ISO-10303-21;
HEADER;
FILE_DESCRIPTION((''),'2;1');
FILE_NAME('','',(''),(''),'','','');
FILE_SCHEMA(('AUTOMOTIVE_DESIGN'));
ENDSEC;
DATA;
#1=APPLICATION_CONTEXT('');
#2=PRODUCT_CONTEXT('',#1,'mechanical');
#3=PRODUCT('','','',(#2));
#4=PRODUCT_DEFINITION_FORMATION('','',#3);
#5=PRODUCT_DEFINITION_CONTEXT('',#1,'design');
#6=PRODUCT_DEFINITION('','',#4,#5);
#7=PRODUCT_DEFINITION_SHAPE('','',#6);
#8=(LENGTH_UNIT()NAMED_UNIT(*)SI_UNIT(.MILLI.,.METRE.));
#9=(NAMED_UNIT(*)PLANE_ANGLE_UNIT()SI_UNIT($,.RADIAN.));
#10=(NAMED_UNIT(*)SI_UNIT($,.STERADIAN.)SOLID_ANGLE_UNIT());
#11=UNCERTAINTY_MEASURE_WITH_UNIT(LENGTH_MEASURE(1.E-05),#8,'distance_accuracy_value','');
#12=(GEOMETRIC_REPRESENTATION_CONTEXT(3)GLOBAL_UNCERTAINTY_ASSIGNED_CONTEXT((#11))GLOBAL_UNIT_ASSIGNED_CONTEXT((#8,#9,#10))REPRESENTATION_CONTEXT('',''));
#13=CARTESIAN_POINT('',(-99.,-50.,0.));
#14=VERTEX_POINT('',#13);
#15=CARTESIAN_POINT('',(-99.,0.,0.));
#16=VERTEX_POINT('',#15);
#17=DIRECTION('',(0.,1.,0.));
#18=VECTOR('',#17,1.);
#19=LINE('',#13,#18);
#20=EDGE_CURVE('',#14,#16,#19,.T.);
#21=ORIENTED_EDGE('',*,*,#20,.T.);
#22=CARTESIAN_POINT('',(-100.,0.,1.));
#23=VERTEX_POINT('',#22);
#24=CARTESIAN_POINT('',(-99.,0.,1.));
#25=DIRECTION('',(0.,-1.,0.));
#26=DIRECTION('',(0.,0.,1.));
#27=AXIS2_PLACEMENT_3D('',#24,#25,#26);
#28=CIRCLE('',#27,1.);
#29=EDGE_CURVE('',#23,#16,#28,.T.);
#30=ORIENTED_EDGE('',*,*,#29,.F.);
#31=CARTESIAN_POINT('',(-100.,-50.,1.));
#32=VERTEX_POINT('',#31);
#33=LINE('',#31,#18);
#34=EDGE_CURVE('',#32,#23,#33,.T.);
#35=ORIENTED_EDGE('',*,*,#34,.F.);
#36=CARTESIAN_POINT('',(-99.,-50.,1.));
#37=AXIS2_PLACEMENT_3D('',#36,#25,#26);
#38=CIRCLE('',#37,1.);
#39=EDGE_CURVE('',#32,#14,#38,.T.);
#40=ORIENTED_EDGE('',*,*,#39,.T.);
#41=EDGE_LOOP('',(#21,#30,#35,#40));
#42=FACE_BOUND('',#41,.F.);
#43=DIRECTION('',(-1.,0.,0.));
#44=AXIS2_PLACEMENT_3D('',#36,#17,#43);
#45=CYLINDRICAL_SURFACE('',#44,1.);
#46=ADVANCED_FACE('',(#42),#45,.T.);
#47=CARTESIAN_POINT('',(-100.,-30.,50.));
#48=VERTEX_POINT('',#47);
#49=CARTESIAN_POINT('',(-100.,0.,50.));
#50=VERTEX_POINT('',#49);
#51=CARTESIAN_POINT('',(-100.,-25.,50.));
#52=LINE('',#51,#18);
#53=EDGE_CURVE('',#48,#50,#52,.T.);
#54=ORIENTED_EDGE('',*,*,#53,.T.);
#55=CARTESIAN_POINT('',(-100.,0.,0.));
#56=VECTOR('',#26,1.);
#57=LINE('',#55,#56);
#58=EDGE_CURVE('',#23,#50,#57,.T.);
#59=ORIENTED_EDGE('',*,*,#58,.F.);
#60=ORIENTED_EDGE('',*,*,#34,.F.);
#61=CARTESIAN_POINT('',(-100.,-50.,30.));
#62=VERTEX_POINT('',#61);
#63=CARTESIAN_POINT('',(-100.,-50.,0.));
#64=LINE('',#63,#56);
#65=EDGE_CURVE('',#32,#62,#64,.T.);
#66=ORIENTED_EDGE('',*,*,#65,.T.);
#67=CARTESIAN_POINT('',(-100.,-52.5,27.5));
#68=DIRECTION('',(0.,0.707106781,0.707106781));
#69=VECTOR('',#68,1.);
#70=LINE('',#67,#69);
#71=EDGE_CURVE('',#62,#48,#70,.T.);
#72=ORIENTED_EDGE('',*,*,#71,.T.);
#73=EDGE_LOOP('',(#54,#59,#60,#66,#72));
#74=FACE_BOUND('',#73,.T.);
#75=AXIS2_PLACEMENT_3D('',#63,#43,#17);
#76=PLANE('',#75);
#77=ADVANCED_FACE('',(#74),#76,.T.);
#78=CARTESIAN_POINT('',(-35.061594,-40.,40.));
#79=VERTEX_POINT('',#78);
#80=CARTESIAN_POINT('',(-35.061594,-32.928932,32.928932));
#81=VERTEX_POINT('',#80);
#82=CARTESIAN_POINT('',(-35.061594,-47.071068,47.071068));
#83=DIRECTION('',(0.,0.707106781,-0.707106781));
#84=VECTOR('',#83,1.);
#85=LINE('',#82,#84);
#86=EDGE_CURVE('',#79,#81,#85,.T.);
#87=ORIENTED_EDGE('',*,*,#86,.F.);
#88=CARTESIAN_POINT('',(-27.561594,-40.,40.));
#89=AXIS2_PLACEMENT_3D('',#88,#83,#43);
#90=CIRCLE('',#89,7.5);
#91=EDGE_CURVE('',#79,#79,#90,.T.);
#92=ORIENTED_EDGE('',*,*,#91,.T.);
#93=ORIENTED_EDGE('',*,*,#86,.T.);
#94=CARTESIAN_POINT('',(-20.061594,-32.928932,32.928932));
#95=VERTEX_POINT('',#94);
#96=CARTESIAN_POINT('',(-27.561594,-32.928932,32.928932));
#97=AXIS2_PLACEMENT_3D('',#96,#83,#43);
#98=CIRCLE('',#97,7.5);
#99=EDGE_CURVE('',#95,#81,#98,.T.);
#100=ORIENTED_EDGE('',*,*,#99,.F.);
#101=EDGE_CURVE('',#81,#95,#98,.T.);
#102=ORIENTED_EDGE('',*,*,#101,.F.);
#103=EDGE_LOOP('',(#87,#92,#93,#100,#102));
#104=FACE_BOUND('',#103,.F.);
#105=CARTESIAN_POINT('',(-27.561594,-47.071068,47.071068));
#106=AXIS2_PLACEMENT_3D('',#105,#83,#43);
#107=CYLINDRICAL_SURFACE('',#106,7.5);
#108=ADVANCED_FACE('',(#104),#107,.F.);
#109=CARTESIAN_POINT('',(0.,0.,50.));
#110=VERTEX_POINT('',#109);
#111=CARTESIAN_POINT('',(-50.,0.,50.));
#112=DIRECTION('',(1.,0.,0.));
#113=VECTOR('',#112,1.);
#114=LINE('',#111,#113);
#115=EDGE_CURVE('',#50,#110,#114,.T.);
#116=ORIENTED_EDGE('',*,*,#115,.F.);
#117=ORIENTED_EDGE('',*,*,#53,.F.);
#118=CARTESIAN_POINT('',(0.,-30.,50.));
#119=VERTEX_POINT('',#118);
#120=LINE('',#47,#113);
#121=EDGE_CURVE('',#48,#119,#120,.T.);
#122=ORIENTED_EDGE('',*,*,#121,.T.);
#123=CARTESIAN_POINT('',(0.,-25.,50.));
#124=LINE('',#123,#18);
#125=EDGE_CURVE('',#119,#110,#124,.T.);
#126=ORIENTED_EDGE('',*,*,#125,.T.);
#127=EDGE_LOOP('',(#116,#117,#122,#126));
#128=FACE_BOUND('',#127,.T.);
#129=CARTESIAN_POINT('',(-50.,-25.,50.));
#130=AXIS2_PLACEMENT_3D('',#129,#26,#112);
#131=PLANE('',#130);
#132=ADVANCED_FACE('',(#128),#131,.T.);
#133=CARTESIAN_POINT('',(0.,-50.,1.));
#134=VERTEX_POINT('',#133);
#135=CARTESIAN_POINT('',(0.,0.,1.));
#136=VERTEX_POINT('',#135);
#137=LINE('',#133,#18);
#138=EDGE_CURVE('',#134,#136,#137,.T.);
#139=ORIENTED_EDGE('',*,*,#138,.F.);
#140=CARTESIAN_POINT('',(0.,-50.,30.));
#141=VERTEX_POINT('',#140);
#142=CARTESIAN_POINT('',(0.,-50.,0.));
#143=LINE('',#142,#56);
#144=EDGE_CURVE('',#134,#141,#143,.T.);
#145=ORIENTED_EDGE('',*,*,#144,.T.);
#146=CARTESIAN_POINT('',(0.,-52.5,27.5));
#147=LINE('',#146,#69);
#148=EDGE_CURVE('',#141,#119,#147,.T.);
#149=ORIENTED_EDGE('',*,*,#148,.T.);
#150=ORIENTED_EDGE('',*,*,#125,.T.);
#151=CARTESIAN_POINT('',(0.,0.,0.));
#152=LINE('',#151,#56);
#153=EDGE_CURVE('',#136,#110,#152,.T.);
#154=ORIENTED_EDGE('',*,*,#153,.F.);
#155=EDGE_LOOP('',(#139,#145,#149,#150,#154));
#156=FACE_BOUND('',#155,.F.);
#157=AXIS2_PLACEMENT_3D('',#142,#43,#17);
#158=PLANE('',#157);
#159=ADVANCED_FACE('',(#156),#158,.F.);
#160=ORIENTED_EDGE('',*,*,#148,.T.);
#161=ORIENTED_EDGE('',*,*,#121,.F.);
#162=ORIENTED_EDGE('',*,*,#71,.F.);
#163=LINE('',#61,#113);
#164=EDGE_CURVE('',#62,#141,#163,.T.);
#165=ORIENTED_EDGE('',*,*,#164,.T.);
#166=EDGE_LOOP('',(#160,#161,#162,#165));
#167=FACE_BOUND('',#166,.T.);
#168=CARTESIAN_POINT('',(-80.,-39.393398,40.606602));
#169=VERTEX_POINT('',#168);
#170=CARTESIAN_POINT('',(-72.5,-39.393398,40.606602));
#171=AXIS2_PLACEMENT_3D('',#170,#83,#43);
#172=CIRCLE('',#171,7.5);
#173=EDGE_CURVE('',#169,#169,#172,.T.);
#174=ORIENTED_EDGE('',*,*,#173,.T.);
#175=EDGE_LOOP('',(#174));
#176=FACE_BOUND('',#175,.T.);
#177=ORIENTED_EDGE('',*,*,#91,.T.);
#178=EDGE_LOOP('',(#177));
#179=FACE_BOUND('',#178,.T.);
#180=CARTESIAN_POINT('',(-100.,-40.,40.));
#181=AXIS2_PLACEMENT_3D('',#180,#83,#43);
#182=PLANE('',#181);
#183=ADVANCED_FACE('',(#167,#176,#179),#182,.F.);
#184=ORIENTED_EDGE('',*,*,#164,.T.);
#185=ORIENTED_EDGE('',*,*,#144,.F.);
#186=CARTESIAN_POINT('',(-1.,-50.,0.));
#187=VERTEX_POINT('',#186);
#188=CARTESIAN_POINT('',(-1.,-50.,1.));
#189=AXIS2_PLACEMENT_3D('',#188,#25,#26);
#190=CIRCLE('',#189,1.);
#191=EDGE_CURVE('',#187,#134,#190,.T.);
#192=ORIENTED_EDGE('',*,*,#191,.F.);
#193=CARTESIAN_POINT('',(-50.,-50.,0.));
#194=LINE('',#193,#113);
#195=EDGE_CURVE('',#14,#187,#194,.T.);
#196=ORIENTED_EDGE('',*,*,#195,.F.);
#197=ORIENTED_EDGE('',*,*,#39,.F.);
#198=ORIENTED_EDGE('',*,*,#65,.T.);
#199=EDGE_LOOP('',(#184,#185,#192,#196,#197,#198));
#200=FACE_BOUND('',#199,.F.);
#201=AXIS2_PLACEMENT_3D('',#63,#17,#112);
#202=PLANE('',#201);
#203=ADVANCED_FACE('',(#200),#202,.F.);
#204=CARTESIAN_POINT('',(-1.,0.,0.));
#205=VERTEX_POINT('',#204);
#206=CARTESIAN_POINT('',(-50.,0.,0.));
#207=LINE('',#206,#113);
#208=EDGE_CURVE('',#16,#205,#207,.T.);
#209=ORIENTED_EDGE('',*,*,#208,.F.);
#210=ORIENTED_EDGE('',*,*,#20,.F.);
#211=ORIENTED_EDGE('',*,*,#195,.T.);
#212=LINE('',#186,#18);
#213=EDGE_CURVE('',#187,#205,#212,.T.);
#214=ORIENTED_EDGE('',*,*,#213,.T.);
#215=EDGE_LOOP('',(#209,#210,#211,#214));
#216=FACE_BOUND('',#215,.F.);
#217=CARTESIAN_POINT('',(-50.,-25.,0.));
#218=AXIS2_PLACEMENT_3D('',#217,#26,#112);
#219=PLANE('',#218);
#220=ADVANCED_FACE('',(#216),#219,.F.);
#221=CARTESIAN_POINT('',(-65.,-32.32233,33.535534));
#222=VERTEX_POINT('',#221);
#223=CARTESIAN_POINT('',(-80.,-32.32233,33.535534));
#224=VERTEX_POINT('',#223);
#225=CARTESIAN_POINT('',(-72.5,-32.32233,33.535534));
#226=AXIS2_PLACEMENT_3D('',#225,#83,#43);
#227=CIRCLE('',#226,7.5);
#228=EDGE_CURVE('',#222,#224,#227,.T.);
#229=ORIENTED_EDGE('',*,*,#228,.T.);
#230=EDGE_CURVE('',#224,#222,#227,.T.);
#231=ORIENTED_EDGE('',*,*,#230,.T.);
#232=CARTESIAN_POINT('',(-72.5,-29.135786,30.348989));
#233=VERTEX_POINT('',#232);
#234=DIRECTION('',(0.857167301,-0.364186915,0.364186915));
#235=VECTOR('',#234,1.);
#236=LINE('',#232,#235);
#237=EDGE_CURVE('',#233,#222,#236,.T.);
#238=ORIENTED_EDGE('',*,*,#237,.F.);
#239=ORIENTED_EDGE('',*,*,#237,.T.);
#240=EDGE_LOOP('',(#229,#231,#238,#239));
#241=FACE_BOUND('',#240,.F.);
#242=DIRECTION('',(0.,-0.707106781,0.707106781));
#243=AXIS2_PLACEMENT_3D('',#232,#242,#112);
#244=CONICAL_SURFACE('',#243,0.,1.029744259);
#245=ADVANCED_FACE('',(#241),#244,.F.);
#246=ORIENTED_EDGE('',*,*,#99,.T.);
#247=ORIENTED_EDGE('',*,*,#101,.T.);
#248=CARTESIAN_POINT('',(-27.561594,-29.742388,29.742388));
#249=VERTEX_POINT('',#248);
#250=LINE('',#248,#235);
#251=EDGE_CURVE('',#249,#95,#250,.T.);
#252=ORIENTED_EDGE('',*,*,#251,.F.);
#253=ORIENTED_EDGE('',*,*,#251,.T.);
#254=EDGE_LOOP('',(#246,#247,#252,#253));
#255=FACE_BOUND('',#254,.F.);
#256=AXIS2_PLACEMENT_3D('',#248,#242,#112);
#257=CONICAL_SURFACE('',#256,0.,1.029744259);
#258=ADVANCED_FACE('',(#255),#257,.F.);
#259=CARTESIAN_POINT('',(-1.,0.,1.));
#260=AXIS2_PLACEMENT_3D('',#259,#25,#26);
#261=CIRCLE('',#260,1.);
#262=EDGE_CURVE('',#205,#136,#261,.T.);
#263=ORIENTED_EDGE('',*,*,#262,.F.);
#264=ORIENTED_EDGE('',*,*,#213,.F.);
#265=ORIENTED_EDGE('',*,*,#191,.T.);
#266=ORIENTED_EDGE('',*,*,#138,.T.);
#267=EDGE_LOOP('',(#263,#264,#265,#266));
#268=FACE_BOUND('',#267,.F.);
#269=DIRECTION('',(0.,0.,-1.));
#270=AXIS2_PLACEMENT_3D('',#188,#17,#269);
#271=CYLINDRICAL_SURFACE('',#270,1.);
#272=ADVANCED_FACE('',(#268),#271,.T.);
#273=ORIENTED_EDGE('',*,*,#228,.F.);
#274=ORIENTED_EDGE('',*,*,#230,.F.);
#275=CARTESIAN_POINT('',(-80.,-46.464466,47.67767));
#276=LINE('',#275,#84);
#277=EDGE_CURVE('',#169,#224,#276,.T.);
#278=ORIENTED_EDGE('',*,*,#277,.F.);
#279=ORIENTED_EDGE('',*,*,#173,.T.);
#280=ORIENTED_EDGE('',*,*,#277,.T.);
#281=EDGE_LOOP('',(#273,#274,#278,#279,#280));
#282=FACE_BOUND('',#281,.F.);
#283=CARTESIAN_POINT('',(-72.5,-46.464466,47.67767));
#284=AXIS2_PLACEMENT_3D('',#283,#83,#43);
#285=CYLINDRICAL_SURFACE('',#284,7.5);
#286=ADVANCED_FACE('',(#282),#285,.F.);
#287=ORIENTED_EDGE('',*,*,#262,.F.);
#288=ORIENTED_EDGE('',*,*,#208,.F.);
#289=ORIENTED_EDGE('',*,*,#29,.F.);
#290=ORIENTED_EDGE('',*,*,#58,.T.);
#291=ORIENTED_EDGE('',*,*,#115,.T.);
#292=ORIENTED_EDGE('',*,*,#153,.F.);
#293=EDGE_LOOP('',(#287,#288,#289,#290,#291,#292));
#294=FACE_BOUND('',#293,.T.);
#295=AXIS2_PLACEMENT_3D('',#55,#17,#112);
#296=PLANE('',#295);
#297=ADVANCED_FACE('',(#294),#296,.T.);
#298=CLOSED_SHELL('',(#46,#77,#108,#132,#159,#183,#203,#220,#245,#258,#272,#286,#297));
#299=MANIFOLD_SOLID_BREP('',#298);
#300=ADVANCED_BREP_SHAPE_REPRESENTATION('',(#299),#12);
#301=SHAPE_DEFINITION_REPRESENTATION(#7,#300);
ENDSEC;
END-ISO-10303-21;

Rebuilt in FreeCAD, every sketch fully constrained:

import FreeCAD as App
import Part
import Sketcher
Q = App.Units.Quantity


def edges_at(feature, points):
    """Names of the edges that pass closest to the given points."""
    edges = feature.Shape.Edges
    near = lambda p: min(range(len(edges)), key=lambda i: edges[i].distToShape(Part.Vertex(*p))[0])
    return sorted({f"Edge{near(p) + 1}" for p in points})

doc = App.newDocument("Part")
body = doc.addObject("PartDesign::Body", "Body")

# Sketch on XY plane
sketch1 = body.newObject("Sketcher::SketchObject", "Sketch")
sketch1.AttachmentSupport = (doc.getObject("XY_Plane"), [""])
sketch1.MapMode = "FlatFace"
sketch1.addGeometry([
    Part.LineSegment(App.Vector(-100, 0, 0), App.Vector(-100, -50, 0)),
    Part.LineSegment(App.Vector(-100, -50, 0), App.Vector(0, -50, 0)),
    Part.LineSegment(App.Vector(0, -50, 0), App.Vector(0, 0, 0)),
    Part.LineSegment(App.Vector(0, 0, 0), App.Vector(-100, 0, 0)),
], False)
sketch1.addConstraint([
    Sketcher.Constraint("Coincident", 0, 2, 1, 1),
    Sketcher.Constraint("Coincident", 1, 2, 2, 1),
    Sketcher.Constraint("Coincident", 2, 2, 3, 1),
    Sketcher.Constraint("Coincident", 3, 2, 0, 1),
    Sketcher.Constraint("Vertical", 0),
    Sketcher.Constraint("Horizontal", 1),
    Sketcher.Constraint("Vertical", 2),
    Sketcher.Constraint("Horizontal", 3),
    Sketcher.Constraint("Coincident", 2, 2, -1, 1),
    Sketcher.Constraint("DistanceX", 1, 1, 1, 2, Q("100 mm")),
    Sketcher.Constraint("DistanceY", 0, 2, 0, 1, Q("50 mm")),
])
pad1 = body.newObject("PartDesign::Pad", "Pad")
pad1.Profile = sketch1
pad1.Length = 50
doc.recompute()

chamfer = body.newObject("PartDesign::Chamfer", "Chamfer")
chamfer.Base = (pad1, edges_at(pad1, [(-50, -50, 50)]))
chamfer.Size = 20

# Sketch on an angled plane
sketch2 = body.newObject("Sketcher::SketchObject", "Sketch001")
sketch2.Placement = App.Placement(App.Vector(0, -40, 40), App.Rotation(App.Vector(1, 0, 0), App.Vector(0, 0.707106781, 0.707106781), App.Vector(0, -0.707106781, 0.707106781), "ZXY"))
sketch2.addGeometry(Part.Circle(App.Vector(-27.561594, 0, 0), App.Vector(0, 0, 1), 7.5), False)
sketch2.addConstraint([
    Sketcher.Constraint("PointOnObject", 0, 3, -1),
    Sketcher.Constraint("Diameter", 0, Q("15 mm")),
    Sketcher.Constraint("DistanceX", 0, 3, -1, 1, Q("27.561594 mm")),
])
doc.recompute()
hole = body.newObject("PartDesign::Hole", "Hole")
hole.Profile = sketch2
hole.ThreadType = "None"
hole.Diameter = 15
hole.DepthType = "Dimension"
hole.Depth = 10
hole.DrillPoint = "Angled"
hole.DrillPointAngle = 118

# Sketch on an angled plane
sketch3 = body.newObject("Sketcher::SketchObject", "Sketch002")
sketch3.Placement = App.Placement(App.Vector(0, -40, 40), App.Rotation(App.Vector(1, 0, 0), App.Vector(0, 0.707106781, 0.707106781), App.Vector(0, -0.707106781, 0.707106781), "ZXY"))
sketch3.addGeometry(Part.Circle(App.Vector(-72.5, 0.857864, 0), App.Vector(0, 0, 1), 7.5), False)
sketch3.addConstraint([
    Sketcher.Constraint("Diameter", 0, Q("15 mm")),
    Sketcher.Constraint("DistanceX", 0, 3, -1, 1, Q("72.5 mm")),
    Sketcher.Constraint("DistanceY", -1, 1, 0, 3, Q("0.857864 mm")),
])
doc.recompute()
hole2 = body.newObject("PartDesign::Hole", "Hole001")
hole2.Profile = sketch3
hole2.ThreadType = "None"
hole2.Diameter = 15
hole2.DepthType = "Dimension"
hole2.Depth = 10
hole2.DrillPoint = "Angled"
hole2.DrillPointAngle = 118
doc.recompute()

fillet = body.newObject("PartDesign::Fillet", "Fillet")
fillet.Base = (hole2, edges_at(hole2, [(0, -25, 0), (-100, -25, 0)]))
fillet.Radius = 1

doc.recompute()
